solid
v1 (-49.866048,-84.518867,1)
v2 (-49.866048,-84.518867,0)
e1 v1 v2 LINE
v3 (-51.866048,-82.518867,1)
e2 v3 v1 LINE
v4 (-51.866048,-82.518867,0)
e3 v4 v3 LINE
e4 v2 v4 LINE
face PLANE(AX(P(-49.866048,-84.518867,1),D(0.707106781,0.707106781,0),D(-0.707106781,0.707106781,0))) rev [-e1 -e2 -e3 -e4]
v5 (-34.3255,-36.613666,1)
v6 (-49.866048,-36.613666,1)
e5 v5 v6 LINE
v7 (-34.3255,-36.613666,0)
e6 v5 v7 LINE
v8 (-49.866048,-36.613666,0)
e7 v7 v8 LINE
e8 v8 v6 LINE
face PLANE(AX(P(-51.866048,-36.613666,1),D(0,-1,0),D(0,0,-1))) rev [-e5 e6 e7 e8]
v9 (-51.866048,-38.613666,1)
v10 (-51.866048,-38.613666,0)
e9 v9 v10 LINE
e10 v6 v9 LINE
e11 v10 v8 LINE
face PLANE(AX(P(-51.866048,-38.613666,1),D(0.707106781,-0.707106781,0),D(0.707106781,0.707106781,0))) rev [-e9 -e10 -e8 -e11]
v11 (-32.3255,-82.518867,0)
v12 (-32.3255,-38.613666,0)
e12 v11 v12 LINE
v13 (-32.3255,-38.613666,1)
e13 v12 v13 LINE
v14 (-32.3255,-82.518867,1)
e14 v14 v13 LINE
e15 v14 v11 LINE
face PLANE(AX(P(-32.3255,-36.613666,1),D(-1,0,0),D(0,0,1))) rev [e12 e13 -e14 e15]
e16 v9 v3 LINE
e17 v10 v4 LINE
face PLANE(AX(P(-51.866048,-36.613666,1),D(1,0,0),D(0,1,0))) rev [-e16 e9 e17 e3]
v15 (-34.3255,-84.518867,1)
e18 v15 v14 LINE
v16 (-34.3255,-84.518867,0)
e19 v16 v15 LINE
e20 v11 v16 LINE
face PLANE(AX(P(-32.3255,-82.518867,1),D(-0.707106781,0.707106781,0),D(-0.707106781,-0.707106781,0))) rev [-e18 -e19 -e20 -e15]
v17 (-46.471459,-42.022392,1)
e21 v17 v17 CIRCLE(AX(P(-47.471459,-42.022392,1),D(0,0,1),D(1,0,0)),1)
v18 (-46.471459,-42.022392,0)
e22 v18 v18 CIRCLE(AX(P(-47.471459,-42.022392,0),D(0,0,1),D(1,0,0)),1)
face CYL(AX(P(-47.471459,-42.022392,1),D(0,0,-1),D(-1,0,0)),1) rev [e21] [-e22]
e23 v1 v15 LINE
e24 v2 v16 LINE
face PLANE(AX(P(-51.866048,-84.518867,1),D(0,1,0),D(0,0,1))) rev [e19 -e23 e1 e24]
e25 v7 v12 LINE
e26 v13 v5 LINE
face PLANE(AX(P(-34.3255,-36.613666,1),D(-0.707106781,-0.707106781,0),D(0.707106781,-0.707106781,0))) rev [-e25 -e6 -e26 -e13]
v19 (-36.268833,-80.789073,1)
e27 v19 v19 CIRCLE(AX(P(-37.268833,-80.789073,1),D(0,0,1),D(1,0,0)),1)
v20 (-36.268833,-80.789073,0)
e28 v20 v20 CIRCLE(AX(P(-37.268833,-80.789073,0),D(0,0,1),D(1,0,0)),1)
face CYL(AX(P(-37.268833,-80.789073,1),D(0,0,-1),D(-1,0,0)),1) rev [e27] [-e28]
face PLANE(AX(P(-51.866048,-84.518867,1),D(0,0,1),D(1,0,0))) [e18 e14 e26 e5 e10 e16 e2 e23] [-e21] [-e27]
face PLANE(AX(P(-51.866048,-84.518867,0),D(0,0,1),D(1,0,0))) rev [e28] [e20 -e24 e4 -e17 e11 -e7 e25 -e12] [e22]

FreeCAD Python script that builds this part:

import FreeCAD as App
import Part
import Sketcher
from FreeCAD import Vector
Q = App.Units.Quantity


def edges_at(feature, points):
    """Names of the edges that pass closest to the given points."""
    edges = feature.Shape.Edges
    near = lambda p: min(range(len(edges)), key=lambda i: edges[i].distToShape(Part.Vertex(*p))[0])
    return sorted({f"Edge{near(p) + 1}" for p in points})


def add_polygon(sketch, points):
    """Adds a closed chain of lines whose ends are joined by coincident constraints."""
    first, n = sketch.GeometryCount, len(points)
    for a, b in zip(points, points[1:] + points[:1]):
        sketch.addGeometry(Part.LineSegment(App.Vector(*a, 0), App.Vector(*b, 0)), False)
    for i in range(n):
        sketch.addConstraint(Sketcher.Constraint("Coincident", first + i, 2, first + (i + 1) % n, 1))

doc = App.newDocument("Part")
body = doc.addObject("PartDesign::Body", "Body")

sketch1 = body.newObject("Sketcher::SketchObject", "Sketch")
sketch1.AttachmentSupport = (doc.getObject("XY_Plane"), [""])
sketch1.MapMode = "FlatFace"
add_polygon(sketch1, [(-51.866048, -36.613666), (-51.866048, -84.518867), (-32.3255, -84.518867), (-32.3255, -36.613666)])
sketch1.addGeometry(Part.Circle(Vector(-37.268833, -80.789073, 0), Vector(0, 0, 1), 1), False)
sketch1.addGeometry(Part.Circle(Vector(-47.471459, -42.022392, 0), Vector(0, 0, 1), 1), False)
sketch1.addConstraint([
    Sketcher.Constraint("Vertical", 0),
    Sketcher.Constraint("Horizontal", 1),
    Sketcher.Constraint("Vertical", 2),
    Sketcher.Constraint("Horizontal", 3),
    Sketcher.Constraint("Equal", 4, 5),
    Sketcher.Constraint("Diameter", 4, Q("2 mm")),
    Sketcher.Constraint("DistanceY", 0, 2, 0, 1, Q("47.905201 mm")),
    Sketcher.Constraint("DistanceX", 1, 1, 1, 2, Q("19.540548 mm")),
    Sketcher.Constraint("DistanceX", 1, 2, -1, 1, Q("32.3255 mm")),
    Sketcher.Constraint("DistanceX", 5, 3, -1, 1, Q("47.471459 mm")),
    Sketcher.Constraint("DistanceY", 5, 3, -1, 1, Q("42.022392 mm")),
    Sketcher.Constraint("DistanceY", 4, 3, 5, 3, Q("38.766681 mm")),
    Sketcher.Constraint("DistanceX", 4, 3, -1, 1, Q("37.268833 mm")),
    Sketcher.Constraint("DistanceY", 0, 2, -1, 1, Q("84.518867 mm")),
])
pad1 = body.newObject("PartDesign::Pad", "Pad")
pad1.Profile = sketch1
pad1.Length = 1
doc.recompute()

chamfer = body.newObject("PartDesign::Chamfer", "Chamfer")
chamfer.Base = (pad1, edges_at(pad1, [
    (-51.866, -36.614, 0.5),
    (-32.325, -36.614, 0.5),
    (-32.325, -84.519, 0.5),
    (-51.866, -84.519, 0.5),
]))
chamfer.Size = 2

doc.recompute()
